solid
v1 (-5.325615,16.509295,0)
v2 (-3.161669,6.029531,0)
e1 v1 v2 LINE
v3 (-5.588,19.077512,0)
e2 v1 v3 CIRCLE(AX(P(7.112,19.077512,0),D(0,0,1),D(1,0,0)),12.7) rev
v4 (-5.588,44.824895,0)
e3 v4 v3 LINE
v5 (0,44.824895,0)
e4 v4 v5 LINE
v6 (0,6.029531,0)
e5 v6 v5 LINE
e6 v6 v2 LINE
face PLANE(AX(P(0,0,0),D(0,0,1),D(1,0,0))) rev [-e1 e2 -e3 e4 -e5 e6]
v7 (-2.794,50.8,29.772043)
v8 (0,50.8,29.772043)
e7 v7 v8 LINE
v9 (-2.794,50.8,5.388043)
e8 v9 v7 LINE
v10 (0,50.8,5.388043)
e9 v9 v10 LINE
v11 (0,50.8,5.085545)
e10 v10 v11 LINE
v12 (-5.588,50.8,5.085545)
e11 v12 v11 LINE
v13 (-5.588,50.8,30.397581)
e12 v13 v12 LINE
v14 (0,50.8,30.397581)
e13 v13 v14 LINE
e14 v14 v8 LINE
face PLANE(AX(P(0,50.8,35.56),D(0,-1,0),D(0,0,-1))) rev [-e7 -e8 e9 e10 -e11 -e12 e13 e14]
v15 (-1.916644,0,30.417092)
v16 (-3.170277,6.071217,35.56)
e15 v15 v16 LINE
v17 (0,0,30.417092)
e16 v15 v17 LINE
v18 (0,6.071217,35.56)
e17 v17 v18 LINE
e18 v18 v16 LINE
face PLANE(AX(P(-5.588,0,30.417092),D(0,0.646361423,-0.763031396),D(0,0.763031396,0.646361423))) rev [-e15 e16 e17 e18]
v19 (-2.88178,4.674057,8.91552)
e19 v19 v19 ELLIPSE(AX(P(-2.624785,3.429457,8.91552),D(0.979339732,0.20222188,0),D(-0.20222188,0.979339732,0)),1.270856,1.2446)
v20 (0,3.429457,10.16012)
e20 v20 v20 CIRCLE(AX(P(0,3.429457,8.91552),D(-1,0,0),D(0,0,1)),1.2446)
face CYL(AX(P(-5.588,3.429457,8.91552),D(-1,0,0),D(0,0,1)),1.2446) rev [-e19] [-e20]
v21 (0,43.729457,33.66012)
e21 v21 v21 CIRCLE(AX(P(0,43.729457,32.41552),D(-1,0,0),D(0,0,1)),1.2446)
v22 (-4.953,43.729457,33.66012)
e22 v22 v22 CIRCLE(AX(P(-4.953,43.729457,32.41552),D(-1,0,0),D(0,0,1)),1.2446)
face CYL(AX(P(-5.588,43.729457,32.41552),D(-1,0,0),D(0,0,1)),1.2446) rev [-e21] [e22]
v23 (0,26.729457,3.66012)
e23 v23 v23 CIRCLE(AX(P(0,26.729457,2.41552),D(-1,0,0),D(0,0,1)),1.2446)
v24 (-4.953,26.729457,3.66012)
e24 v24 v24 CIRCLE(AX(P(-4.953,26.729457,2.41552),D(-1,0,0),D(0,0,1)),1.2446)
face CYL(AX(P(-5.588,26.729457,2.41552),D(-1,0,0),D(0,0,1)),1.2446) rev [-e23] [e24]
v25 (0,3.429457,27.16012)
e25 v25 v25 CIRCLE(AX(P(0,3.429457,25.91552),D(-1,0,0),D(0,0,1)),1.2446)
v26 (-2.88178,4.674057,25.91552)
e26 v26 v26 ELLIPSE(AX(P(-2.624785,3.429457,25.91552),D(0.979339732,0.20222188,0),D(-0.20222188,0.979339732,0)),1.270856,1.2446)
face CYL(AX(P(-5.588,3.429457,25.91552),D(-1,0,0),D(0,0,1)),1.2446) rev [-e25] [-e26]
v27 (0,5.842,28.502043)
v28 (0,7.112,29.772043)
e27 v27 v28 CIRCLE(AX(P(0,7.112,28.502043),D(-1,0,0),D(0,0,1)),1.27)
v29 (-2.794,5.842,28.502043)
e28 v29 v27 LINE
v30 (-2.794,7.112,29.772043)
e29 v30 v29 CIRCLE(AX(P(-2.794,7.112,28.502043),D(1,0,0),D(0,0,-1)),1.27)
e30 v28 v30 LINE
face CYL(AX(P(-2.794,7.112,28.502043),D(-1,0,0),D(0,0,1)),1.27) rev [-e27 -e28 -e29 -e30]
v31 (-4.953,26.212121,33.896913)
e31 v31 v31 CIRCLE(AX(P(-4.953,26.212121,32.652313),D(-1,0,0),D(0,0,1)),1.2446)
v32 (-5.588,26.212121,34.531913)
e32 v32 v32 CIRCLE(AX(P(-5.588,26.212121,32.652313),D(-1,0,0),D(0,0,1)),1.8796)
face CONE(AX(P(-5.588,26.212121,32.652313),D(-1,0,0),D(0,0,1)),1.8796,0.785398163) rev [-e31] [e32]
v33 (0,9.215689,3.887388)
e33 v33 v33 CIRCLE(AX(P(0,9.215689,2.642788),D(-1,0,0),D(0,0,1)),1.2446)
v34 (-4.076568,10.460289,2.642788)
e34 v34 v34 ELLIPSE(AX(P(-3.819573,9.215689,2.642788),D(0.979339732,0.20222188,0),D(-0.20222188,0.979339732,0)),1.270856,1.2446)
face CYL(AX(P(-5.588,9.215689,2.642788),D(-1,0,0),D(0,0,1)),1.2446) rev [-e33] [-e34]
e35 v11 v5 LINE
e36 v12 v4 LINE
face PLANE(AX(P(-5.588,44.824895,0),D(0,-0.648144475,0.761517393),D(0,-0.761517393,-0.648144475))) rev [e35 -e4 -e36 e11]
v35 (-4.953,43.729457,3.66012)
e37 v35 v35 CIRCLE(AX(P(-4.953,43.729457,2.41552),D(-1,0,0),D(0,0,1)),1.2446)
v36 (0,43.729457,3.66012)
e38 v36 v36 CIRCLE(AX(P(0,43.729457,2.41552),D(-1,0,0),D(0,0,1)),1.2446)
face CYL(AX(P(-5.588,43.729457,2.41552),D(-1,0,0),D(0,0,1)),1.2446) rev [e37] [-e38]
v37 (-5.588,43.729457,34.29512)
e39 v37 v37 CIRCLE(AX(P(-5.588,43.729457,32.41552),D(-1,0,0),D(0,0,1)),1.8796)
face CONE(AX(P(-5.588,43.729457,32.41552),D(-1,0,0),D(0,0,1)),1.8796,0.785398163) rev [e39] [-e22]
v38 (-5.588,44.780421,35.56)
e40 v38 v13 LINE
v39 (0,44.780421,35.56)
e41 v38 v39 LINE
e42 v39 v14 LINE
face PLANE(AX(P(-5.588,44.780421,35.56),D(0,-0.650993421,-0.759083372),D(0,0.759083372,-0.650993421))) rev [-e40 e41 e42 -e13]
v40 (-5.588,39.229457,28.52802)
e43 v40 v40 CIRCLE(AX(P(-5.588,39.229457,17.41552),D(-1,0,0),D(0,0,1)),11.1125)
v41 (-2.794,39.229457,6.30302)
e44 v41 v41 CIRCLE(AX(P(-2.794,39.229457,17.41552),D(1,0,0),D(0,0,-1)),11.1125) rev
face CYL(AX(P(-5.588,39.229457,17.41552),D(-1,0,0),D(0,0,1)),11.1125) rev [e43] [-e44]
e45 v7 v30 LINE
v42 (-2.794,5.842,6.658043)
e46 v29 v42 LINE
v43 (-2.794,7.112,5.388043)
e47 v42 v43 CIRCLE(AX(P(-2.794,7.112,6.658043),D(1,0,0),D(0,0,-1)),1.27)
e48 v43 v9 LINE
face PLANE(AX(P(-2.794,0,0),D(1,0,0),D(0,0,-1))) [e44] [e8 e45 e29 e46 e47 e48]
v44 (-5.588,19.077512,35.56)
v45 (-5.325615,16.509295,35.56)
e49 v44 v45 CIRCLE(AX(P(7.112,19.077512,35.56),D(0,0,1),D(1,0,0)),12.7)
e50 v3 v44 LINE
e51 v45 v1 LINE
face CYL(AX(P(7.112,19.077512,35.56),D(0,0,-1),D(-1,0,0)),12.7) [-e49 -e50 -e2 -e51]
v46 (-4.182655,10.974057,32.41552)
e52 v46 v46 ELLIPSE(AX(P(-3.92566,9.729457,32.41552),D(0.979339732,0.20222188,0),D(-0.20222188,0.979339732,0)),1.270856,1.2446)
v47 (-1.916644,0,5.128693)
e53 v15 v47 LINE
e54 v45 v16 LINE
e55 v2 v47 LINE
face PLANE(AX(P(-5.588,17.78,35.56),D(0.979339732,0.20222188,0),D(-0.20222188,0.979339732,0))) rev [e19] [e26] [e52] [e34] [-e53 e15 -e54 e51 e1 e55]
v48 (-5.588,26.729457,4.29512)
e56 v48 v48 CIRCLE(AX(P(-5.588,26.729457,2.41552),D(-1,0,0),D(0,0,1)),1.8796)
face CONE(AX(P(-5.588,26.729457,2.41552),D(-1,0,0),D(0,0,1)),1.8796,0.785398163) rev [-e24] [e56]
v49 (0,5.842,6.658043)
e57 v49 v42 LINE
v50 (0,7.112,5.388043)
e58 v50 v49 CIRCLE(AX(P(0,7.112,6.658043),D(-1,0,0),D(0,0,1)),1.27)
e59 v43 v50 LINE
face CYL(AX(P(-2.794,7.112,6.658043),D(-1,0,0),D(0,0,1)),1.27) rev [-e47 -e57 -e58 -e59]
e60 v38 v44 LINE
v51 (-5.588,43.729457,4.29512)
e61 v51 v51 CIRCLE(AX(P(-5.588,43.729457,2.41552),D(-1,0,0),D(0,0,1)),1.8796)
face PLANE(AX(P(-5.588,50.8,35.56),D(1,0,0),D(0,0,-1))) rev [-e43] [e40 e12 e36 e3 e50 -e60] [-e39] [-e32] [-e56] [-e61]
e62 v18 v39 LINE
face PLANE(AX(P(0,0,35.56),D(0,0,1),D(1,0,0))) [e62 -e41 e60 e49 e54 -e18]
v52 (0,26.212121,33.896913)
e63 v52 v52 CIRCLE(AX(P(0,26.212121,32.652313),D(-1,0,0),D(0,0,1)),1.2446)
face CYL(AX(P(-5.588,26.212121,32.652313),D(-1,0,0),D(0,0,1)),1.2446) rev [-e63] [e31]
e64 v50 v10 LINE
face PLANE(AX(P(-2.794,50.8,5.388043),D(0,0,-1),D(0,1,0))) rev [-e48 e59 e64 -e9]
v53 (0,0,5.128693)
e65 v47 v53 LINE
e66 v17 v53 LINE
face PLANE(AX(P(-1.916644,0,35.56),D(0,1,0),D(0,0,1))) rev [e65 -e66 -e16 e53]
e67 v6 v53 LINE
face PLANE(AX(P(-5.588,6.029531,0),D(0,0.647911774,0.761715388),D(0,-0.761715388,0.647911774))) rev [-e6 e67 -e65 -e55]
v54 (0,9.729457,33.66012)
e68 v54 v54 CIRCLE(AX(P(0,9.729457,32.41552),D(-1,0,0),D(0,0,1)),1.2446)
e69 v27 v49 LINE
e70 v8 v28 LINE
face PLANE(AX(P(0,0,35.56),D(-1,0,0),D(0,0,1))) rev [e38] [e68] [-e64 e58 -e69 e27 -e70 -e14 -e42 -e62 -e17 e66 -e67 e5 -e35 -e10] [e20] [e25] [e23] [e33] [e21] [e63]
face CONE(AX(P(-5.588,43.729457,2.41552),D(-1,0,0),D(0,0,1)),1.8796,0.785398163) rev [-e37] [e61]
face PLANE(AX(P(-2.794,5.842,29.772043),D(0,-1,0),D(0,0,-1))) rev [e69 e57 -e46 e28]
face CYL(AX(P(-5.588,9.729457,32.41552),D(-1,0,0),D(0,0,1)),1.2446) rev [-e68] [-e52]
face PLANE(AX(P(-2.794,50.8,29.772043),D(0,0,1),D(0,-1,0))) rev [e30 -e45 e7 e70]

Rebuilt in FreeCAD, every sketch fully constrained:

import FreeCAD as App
import Part
import Sketcher
Q = App.Units.Quantity


def edges_at(feature, points):
    """Names of the edges that pass closest to the given points."""
    edges = feature.Shape.Edges
    near = lambda p: min(range(len(edges)), key=lambda i: edges[i].distToShape(Part.Vertex(*p))[0])
    return sorted({f"Edge{near(p) + 1}" for p in points})


def add_polygon(sketch, points):
    """Adds a closed chain of lines whose ends are joined by coincident constraints."""
    first, n = sketch.GeometryCount, len(points)
    for a, b in zip(points, points[1:] + points[:1]):
        sketch.addGeometry(Part.LineSegment(App.Vector(*a, 0), App.Vector(*b, 0)), False)
    for i in range(n):
        sketch.addConstraint(Sketcher.Constraint("Coincident", first + i, 2, first + (i + 1) % n, 1))

doc = App.newDocument("Part")
body = doc.addObject("PartDesign::Body", "Body")

sketch1 = body.newObject("Sketcher::SketchObject", "Sketch")
sketch1.AttachmentSupport = (doc.getObject("XY_Plane"), [""])
sketch1.MapMode = "FlatFace"
add_polygon(sketch1, [(0, 0), (0, 50.8), (-5.6, 50.8), (-5.6, 17.8), (-1.9, 0)])
sketch1.addConstraint(Sketcher.Constraint("Vertical", 0))
sketch1.addConstraint(Sketcher.Constraint("Horizontal", 1))
sketch1.addConstraint(Sketcher.Constraint("Vertical", 2))
sketch1.addConstraint(Sketcher.Constraint("Horizontal", 4))
sketch1.addConstraint(Sketcher.Constraint("Coincident", 4, 2, -1, 1))
sketch1.addConstraint(Sketcher.Constraint("DistanceY", 0, 1, 0, 2, Q("2 in")))
sketch1.addConstraint(Sketcher.Constraint("DistanceY", 2, 2, 2, 1, Q("1.3 in")))
sketch1.addConstraint(Sketcher.Constraint("DistanceX", 1, 2, 1, 1, Q("0.22 in")))
sketch1.addConstraint(Sketcher.Constraint("Distance", 3, Q("18.155089 mm")))
pad1 = body.newObject("PartDesign::Pad", "Pad")
pad1.Profile = sketch1
pad1.Length = Q("1.4 in")
doc.recompute()

fillet = body.newObject("PartDesign::Fillet", "Fillet")
fillet.Base = (pad1, edges_at(pad1, [(-5.588, 17.78, 17.78)]))
fillet.Radius = Q("0.5 in")

sketch2 = body.newObject("Sketcher::SketchObject", "Sketch001")
sketch2.AttachmentSupport = (doc.getObject("YZ_Plane"), [""])
sketch2.MapMode = "FlatFace"
sketch2.AttachmentOffset = App.Placement(App.Vector(0, 0, -0.22 * 25.4), App.Rotation())
sketch2.addGeometry(Part.Circle(App.Vector(39, 17, 0), App.Vector(0, 0, 1), 11), False)
sketch2.addConstraint(Sketcher.Constraint("Diameter", 0, Q("0.875 in")))
sketch2.addConstraint(Sketcher.Constraint("DistanceY", -1, 1, 0, 3, Q("17.41552 mm")))
sketch2.addConstraint(Sketcher.Constraint("DistanceX", -1, 1, 0, 3, Q("39.229457 mm")))
doc.recompute()
hole = body.newObject("PartDesign::Hole", "Hole")
hole.Profile = sketch2
hole.ThreadType = "None"
hole.Diameter = Q("0.875 in")
hole.DepthType = "ThroughAll"
hole.Reversed = True

sketch3 = body.newObject("Sketcher::SketchObject", "Sketch002")
sketch3.AttachmentSupport = (doc.getObject("YZ_Plane"), [""])
sketch3.MapMode = "FlatFace"
add_polygon(sketch3, [(51, 30), (6, 30), (6, 5), (51, 5)])
sketch3.addConstraint(Sketcher.Constraint("Horizontal", 0))
sketch3.addConstraint(Sketcher.Constraint("Vertical", 1))
sketch3.addConstraint(Sketcher.Constraint("Horizontal", 2))
sketch3.addConstraint(Sketcher.Constraint("Vertical", 3))
sketch3.addConstraint(Sketcher.Constraint("DistanceX", -1, 1, 2, 2, Q("2 in")))
sketch3.addConstraint(Sketcher.Constraint("DistanceX", 0, 2, 0, 1, Q("1.77 in")))
sketch3.addConstraint(Sketcher.Constraint("DistanceY", 1, 2, 1, 1, Q("0.96 in")))
sketch3.addConstraint(Sketcher.Constraint("DistanceY", -1, 1, 0, 2, Q("29.772043 mm")))
pocket1 = body.newObject("PartDesign::Pocket", "Pocket")
pocket1.Profile = sketch3
pocket1.Length = Q("0.11 in")
doc.recompute()

fillet2 = body.newObject("PartDesign::Fillet", "Fillet001")
fillet2.Base = (pocket1, edges_at(pocket1, [(-1.397, 5.842, 29.772), (-1.397, 5.842, 5.388)]))
fillet2.Radius = Q("0.05 in")

sketch4 = body.newObject("Sketcher::SketchObject", "Sketch003")
sketch4.AttachmentSupport = (doc.getObject("YZ_Plane"), [""])
sketch4.MapMode = "FlatFace"
sketch4.AttachmentOffset = App.Placement(App.Vector(0, 0, -0.22 * 25.4), App.Rotation())
sketch4.addGeometry(Part.Circle(App.Vector(43.7, 32.4, 0), App.Vector(0, 0, 1), 1.2), False)
sketch4.addGeometry(Part.Circle(App.Vector(26.2, 32.7, 0), App.Vector(0, 0, 1), 1.2), False)
sketch4.addGeometry(Part.Circle(App.Vector(9.7, 32.4, 0), App.Vector(0, 0, 1), 1.2), False)
sketch4.addGeometry(Part.Circle(App.Vector(3.4, 25.9, 0), App.Vector(0, 0, 1), 1.2), False)
sketch4.addGeometry(Part.Circle(App.Vector(3.4, 8.9, 0), App.Vector(0, 0, 1), 1.2), False)
sketch4.addGeometry(Part.Circle(App.Vector(9.2, 2.6, 0), App.Vector(0, 0, 1), 1.2), False)
sketch4.addGeometry(Part.Circle(App.Vector(26.7, 2.4, 0), App.Vector(0, 0, 1), 1.2), False)
sketch4.addGeometry(Part.Circle(App.Vector(43.7, 2.4, 0), App.Vector(0, 0, 1), 1.2), False)
sketch4.addConstraint(Sketcher.Constraint("Equal", 0, 1))
sketch4.addConstraint(Sketcher.Constraint("Equal", 1, 2))
sketch4.addConstraint(Sketcher.Constraint("Equal", 2, 3))
sketch4.addConstraint(Sketcher.Constraint("Equal", 3, 4))
sketch4.addConstraint(Sketcher.Constraint("Equal", 4, 5))
sketch4.addConstraint(Sketcher.Constraint("Equal", 5, 6))
sketch4.addConstraint(Sketcher.Constraint("Equal", 6, 7))
sketch4.addConstraint(Sketcher.Constraint("Horizontal", 0, 3, 2, 3))
sketch4.addConstraint(Sketcher.Constraint("Horizontal", 6, 3, 7, 3))
sketch4.addConstraint(Sketcher.Constraint("Vertical", 3, 3, 4, 3))
sketch4.addConstraint(Sketcher.Constraint("Vertical", 0, 3, 7, 3))
sketch4.addConstraint(Sketcher.Constraint("Diameter", 0, Q("0.098 in")))
sketch4.addConstraint(Sketcher.Constraint("DistanceX", 2, 3, 0, 3, Q("34 mm")))
sketch4.addConstraint(Sketcher.Constraint("DistanceX", 3, 3, 2, 3, Q("6.3 mm")))
sketch4.addConstraint(Sketcher.Constraint("DistanceY", 3, 3, 2, 3, Q("6.5 mm")))
sketch4.addConstraint(Sketcher.Constraint("DistanceY", 4, 3, 3, 3, Q("17 mm")))
sketch4.addConstraint(Sketcher.Constraint("DistanceX", 4, 3, 6, 3, Q("23.3 mm")))
sketch4.addConstraint(Sketcher.Constraint("DistanceY", 6, 3, 4, 3, Q("6.5 mm")))
sketch4.addConstraint(Sketcher.Constraint("DistanceY", -1, 1, 0, 3, Q("32.41552 mm")))
sketch4.addConstraint(Sketcher.Constraint("DistanceX", -1, 1, 1, 3, Q("26.212121 mm")))
sketch4.addConstraint(Sketcher.Constraint("DistanceX", -1, 1, 5, 3, Q("9.215689 mm")))
sketch4.addConstraint(Sketcher.Constraint("DistanceY", -1, 1, 5, 3, Q("2.642788 mm")))
sketch4.addConstraint(Sketcher.Constraint("DistanceX", 4, 3, 5, 3, Q("5.786232 mm")))
sketch4.addConstraint(Sketcher.Constraint("DistanceY", -1, 1, 1, 3, Q("32.652313 mm")))
doc.recompute()
hole2 = body.newObject("PartDesign::Hole", "Hole001")
hole2.Profile = sketch4
hole2.ThreadType = "None"
hole2.Diameter = Q("0.098 in")
hole2.DepthType = "ThroughAll"
hole2.HoleCutType = "Countersink"
hole2.HoleCutDiameter = Q("0.148 in")
hole2.HoleCutCountersinkAngle = 90
hole2.Reversed = True

sketch5 = body.newObject("Sketcher::SketchObject", "Sketch004")
sketch5.AttachmentSupport = (doc.getObject("YZ_Plane"), [""])
sketch5.MapMode = "FlatFace"
add_polygon(sketch5, [(45, 36), (51, 30), (51, 36)])
sketch5.addConstraint(Sketcher.Constraint("Vertical", 1))
sketch5.addConstraint(Sketcher.Constraint("Horizontal", 2))
sketch5.addConstraint(Sketcher.Constraint("DistanceX", -1, 1, 0, 2, Q("2 in")))
sketch5.addConstraint(Sketcher.Constraint("DistanceY", -1, 1, 1, 2, Q("1.4 in")))
sketch5.addConstraint(Sketcher.Constraint("DistanceX", 2, 2, 2, 1, Q("6.019579 mm")))
sketch5.addConstraint(Sketcher.Constraint("DistanceY", 1, 1, 1, 2, Q("5.162419 mm")))
pocket2 = body.newObject("PartDesign::Pocket", "Pocket001")
pocket2.Profile = sketch5
pocket2.Type = "ThroughAll"

sketch6 = body.newObject("Sketcher::SketchObject", "Sketch005")
sketch6.AttachmentSupport = (doc.getObject("YZ_Plane"), [""])
sketch6.MapMode = "FlatFace"
add_polygon(sketch6, [(51, 0), (51, 5), (45, 0)])
add_polygon(sketch6, [(6, 0), (0, 5), (0, 0)])
add_polygon(sketch6, [(6, 36), (0, 36), (0, 30)])
sketch6.addConstraint(Sketcher.Constraint("Vertical", 0))
sketch6.addConstraint(Sketcher.Constraint("Horizontal", 2))
sketch6.addConstraint(Sketcher.Constraint("Vertical", 4))
sketch6.addConstraint(Sketcher.Constraint("Horizontal", 5))
sketch6.addConstraint(Sketcher.Constraint("Horizontal", 6))
sketch6.addConstraint(Sketcher.Constraint("Vertical", 7))
sketch6.addConstraint(Sketcher.Constraint("Coincident", 4, 2, -1, 1))
sketch6.addConstraint(Sketcher.Constraint("PointOnObject", 1, 2, -1))
sketch6.addConstraint(Sketcher.Constraint("PointOnObject", 6, 2, -2))
sketch6.addConstraint(Sketcher.Constraint("DistanceX", -1, 1, 0, 2, Q("2 in")))
sketch6.addConstraint(Sketcher.Constraint("DistanceY", -1, 1, 6, 2, Q("1.4 in")))
sketch6.addConstraint(Sketcher.Constraint("DistanceX", 5, 1, 5, 2, Q("6.029531 mm")))
sketch6.addConstraint(Sketcher.Constraint("DistanceY", 7, 2, 7, 1, Q("5.142908 mm")))
sketch6.addConstraint(Sketcher.Constraint("DistanceY", 3, 2, 7, 2, Q("25.288399 mm")))
sketch6.addConstraint(Sketcher.Constraint("DistanceX", 2, 1, 2, 2, Q("5.975105 mm")))
sketch6.addConstraint(Sketcher.Constraint("DistanceX", 6, 2, 6, 1, Q("6.071217 mm")))
sketch6.addConstraint(Sketcher.Constraint("DistanceY", 0, 1, 0, 2, Q("5.085545 mm")))
pocket3 = body.newObject("PartDesign::Pocket", "Pocket002")
pocket3.Profile = sketch6
pocket3.Type = "ThroughAll"

doc.recompute()
